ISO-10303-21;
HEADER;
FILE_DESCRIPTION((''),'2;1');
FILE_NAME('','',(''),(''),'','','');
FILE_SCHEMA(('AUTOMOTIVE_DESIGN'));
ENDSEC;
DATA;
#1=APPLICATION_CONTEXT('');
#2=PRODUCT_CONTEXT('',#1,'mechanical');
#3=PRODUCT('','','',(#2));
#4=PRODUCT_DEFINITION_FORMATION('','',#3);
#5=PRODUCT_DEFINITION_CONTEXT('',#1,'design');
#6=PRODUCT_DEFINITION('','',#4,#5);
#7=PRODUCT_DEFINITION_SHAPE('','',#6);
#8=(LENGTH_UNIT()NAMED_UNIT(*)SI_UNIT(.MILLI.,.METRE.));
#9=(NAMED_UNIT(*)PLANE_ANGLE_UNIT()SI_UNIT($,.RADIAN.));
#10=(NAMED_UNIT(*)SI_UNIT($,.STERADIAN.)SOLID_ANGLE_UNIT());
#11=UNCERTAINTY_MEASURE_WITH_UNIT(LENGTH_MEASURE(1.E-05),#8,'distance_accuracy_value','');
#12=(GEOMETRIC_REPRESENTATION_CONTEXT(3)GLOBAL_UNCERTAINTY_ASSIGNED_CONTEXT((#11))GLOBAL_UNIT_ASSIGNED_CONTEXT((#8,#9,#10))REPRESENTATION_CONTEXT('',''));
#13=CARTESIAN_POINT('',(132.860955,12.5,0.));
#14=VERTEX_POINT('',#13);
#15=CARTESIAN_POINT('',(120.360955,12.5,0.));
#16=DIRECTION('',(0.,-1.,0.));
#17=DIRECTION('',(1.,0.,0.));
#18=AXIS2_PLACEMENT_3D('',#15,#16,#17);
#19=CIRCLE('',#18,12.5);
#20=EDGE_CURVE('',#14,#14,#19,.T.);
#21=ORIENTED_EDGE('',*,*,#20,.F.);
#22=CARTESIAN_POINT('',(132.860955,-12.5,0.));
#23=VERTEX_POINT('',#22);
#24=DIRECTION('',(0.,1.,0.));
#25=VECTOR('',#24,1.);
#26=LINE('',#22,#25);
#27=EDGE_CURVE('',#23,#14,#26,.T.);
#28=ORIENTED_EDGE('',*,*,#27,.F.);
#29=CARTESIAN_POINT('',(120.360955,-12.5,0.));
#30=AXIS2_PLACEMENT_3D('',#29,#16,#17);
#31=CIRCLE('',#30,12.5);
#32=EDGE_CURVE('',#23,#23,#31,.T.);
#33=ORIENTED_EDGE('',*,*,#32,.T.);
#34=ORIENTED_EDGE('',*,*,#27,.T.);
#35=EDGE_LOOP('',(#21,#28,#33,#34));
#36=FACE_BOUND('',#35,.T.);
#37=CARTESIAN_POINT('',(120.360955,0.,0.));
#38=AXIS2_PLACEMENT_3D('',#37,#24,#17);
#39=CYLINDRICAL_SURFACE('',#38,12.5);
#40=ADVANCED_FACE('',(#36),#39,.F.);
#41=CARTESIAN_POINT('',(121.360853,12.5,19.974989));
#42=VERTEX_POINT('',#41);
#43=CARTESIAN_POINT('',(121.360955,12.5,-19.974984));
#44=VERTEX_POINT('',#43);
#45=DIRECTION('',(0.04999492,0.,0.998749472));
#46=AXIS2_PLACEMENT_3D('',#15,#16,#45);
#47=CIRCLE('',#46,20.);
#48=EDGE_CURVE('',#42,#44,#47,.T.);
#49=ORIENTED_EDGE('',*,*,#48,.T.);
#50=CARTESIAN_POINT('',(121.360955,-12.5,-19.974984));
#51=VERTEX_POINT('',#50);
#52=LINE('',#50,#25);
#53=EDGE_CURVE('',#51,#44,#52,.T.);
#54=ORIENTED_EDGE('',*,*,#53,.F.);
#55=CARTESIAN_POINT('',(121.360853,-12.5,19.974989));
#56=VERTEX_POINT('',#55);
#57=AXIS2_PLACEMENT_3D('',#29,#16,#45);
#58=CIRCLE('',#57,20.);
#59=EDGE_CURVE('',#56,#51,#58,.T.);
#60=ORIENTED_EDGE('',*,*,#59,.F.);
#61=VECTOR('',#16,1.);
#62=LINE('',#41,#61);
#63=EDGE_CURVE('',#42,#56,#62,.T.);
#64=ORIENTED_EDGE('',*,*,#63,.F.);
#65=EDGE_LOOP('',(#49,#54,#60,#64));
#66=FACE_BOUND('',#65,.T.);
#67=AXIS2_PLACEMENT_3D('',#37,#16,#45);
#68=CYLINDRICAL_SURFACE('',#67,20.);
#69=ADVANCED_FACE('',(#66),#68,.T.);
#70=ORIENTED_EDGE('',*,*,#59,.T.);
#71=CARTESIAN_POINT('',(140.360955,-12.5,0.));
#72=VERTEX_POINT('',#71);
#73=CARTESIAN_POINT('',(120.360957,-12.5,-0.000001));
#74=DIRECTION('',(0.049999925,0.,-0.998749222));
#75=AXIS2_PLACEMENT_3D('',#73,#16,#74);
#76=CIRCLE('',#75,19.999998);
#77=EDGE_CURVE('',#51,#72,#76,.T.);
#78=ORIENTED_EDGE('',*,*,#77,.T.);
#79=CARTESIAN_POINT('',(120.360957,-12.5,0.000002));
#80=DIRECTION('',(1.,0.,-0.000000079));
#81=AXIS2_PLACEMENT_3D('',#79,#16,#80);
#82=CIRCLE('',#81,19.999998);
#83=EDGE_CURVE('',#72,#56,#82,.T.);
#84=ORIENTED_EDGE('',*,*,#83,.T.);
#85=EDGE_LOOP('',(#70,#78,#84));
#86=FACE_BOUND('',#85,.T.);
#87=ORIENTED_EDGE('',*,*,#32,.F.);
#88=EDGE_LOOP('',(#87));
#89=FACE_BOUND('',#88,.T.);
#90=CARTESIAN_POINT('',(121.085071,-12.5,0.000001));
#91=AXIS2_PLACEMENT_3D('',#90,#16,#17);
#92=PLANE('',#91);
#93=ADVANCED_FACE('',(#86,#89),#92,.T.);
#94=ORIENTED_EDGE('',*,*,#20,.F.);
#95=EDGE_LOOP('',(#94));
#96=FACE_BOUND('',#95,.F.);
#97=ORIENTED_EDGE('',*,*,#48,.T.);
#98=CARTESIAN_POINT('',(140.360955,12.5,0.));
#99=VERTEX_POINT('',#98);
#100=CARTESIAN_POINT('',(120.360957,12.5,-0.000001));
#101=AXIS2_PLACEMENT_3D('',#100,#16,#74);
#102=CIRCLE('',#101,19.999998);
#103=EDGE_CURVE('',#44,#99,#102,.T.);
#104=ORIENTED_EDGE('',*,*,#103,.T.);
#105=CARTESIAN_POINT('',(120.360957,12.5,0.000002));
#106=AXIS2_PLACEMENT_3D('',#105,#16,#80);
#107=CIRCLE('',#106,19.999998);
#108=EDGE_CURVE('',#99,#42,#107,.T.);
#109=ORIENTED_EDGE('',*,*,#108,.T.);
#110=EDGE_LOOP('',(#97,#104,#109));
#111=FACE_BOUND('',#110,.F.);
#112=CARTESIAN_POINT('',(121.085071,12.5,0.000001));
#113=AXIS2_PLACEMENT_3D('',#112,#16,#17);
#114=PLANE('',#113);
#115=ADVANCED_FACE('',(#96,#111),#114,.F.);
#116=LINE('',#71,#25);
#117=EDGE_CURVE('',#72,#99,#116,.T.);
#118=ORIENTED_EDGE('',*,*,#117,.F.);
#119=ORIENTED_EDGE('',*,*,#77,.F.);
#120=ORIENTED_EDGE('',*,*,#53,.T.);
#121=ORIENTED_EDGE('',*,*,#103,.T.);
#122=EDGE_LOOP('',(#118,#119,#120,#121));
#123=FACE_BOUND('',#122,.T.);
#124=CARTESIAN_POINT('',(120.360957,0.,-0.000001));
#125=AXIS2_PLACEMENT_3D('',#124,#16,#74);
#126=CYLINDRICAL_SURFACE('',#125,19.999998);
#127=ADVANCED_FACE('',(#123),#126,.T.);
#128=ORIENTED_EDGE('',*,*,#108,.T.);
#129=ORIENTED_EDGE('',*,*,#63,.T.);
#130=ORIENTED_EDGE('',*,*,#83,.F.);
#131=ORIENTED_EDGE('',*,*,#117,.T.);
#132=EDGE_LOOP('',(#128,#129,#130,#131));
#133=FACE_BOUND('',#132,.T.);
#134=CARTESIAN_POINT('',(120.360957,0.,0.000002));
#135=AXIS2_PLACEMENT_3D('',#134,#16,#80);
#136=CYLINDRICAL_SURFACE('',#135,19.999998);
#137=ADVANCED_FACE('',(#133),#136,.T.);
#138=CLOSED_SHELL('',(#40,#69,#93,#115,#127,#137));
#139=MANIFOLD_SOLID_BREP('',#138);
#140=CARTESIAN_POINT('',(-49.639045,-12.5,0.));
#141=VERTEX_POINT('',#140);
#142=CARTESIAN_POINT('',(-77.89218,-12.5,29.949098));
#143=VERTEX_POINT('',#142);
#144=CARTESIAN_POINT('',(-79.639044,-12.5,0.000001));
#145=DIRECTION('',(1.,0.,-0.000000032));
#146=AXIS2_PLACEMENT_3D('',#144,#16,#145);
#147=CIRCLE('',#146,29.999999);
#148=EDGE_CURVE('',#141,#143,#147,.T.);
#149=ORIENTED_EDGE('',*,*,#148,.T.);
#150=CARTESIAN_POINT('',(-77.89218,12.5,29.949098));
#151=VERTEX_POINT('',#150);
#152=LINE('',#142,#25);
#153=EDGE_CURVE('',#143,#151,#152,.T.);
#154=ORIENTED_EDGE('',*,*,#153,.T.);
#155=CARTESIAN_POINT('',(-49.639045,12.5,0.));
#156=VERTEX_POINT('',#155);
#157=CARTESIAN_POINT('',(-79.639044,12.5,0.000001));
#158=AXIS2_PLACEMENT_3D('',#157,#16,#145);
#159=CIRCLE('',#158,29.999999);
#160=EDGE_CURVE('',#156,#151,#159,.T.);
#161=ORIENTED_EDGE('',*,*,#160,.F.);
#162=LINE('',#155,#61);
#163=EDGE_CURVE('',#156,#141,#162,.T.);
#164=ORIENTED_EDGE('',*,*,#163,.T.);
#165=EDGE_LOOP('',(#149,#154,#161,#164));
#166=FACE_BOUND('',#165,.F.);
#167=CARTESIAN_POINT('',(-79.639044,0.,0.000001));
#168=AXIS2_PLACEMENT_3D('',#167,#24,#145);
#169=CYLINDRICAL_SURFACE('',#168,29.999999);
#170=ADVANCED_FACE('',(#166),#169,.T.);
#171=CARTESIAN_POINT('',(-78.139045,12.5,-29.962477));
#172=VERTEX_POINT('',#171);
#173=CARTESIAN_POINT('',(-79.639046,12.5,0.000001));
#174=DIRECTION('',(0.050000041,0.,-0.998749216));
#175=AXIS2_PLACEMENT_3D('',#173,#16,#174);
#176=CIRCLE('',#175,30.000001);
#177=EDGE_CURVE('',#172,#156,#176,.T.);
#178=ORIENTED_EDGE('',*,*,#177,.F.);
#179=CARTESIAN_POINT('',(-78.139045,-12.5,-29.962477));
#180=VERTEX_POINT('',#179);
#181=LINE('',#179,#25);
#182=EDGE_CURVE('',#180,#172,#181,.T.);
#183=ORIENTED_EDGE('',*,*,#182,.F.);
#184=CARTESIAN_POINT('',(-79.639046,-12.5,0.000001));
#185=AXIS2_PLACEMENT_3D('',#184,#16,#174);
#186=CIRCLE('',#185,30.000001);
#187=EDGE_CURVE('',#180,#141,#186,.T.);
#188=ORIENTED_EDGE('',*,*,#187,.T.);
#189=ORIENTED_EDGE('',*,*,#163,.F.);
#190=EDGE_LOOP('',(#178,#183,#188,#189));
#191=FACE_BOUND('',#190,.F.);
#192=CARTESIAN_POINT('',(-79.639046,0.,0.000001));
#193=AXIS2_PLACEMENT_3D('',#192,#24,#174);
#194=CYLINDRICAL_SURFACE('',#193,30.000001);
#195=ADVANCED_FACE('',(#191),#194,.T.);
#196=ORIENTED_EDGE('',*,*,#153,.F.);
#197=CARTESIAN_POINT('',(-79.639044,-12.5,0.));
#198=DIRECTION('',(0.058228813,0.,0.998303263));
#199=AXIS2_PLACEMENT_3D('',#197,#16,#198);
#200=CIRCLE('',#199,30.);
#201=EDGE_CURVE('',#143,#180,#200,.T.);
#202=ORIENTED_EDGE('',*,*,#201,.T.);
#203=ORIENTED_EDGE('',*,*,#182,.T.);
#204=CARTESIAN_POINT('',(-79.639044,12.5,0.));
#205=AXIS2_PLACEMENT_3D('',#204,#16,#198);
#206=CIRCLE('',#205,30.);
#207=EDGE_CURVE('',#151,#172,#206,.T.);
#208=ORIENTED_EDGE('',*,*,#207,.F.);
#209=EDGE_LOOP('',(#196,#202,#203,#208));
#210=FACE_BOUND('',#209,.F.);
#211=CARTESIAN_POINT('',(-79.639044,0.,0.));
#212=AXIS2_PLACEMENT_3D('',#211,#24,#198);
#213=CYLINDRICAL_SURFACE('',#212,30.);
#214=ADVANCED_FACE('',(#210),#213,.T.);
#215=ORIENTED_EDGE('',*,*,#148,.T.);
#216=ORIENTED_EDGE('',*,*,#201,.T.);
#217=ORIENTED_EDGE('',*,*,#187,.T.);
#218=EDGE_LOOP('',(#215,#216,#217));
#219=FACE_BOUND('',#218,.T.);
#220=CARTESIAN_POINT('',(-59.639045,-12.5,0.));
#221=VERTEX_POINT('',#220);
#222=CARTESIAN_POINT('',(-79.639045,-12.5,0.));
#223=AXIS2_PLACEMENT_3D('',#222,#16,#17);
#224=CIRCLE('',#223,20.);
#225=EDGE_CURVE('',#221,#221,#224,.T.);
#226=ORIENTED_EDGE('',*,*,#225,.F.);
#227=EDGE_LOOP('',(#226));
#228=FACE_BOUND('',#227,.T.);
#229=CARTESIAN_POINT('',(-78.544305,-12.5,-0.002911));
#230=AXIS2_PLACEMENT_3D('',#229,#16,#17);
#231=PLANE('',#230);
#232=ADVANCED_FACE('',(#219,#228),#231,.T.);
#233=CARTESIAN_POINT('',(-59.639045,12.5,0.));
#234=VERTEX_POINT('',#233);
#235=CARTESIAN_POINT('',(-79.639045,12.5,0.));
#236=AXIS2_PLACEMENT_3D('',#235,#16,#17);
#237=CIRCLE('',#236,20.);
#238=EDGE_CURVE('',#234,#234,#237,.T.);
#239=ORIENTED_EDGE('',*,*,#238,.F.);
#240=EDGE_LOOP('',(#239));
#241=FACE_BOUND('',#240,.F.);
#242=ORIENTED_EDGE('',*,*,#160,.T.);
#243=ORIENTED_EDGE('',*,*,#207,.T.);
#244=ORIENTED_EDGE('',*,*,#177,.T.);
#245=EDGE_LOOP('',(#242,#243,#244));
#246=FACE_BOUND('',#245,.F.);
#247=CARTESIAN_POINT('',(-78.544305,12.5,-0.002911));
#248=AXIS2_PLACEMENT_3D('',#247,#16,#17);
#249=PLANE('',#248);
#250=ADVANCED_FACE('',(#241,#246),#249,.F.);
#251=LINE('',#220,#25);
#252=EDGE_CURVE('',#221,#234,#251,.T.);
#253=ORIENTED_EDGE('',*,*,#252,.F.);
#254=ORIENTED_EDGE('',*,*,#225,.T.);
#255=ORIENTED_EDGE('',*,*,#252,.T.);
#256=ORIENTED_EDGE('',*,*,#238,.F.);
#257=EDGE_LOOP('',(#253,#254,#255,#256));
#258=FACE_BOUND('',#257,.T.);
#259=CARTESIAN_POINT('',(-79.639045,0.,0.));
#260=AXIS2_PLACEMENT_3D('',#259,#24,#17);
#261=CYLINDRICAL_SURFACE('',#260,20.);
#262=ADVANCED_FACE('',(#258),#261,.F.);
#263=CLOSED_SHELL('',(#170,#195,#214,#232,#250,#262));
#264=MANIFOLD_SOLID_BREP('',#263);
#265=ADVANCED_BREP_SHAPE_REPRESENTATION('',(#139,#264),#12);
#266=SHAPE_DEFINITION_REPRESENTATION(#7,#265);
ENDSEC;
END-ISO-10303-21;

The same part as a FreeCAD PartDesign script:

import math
import FreeCAD as App
import Part
import Sketcher
from FreeCAD import Vector

doc = App.newDocument("Part")
params = doc.addObject("Spreadsheet::Sheet", "Params")
for row, (alias, value) in enumerate([
    ("sketch1_diameter", "40 mm"),
    ("sketch1_diameter2", "25 mm"),
    ("sketch1_radius", "30.000001 mm"),
    ("sketch1_radius2", "20 mm"),
    ("sketch1_width", "1.499999 mm"),
    ("pad1_length", "25 mm"),
], start=1):
    params.set(f"A{row}", alias)
    params.set(f"B{row}", "=" + value)
    params.setAlias(f"B{row}", alias)

body = doc.addObject("PartDesign::Body", "Body")
body.AllowCompound = True

# Sketch on XZ plane
sketch1 = doc.addObject("Sketcher::SketchObject", "Sketch")
body.addObject(sketch1)
sketch1.AttachmentSupport = (doc.XZ_Plane, [""])
sketch1.MapMode = "FlatFace"
sketch1.addGeometry([
    Part.ArcOfCircle(Part.Circle(Vector(-79.639046, 0.000001, 0), Vector(0, 0, 1), 30.000001), math.radians(-87.134014), math.radians(-0.000001)),  # 0
    Part.ArcOfCircle(Part.Circle(Vector(-79.639044, 0.000001, 0), Vector(0, 0, 1), 29.999999), math.radians(-0.000002), math.radians(86.661847)),  # 1
    Part.ArcOfCircle(Part.Circle(Vector(-79.639044, 0, 0), Vector(0, 0, 1), 30), math.radians(86.661847), math.radians(272.865983)),  # 2
    Part.Circle(Vector(-79.639045, 0, 0), Vector(0, 0, 1), 20),  # 3
    Part.ArcOfCircle(Part.Circle(Vector(120.360957, 0.000002, 0), Vector(0, 0, 1), 19.999998), math.radians(-0.000005), math.radians(87.134314)),  # 4
    Part.ArcOfCircle(Part.Circle(Vector(120.360955, 0, 0), Vector(0, 0, 1), 20), math.radians(87.134307), math.radians(272.865985)),  # 5
    Part.ArcOfCircle(Part.Circle(Vector(120.360957, -0.000001, 0), Vector(0, 0, 1), 19.999998), math.radians(-87.13402), math.radians(0.000003)),  # 6
    Part.Circle(Vector(120.360955, 0, 0), Vector(0, 0, 1), 12.5),  # 7
], False)
sketch1.addConstraint([
    Sketcher.Constraint("Tangent", 0, 2, 1, 1),
    Sketcher.Constraint("Tangent", 1, 2, 2, 1),
    Sketcher.Constraint("Tangent", 2, 2, 0, 1),
    Sketcher.Constraint("Tangent", 4, 2, 5, 1),
    Sketcher.Constraint("Tangent", 5, 2, 6, 1),
    Sketcher.Constraint("Tangent", 6, 2, 4, 1),
    Sketcher.Constraint("Coincident", 3, 3, 0, 3),
    Sketcher.Constraint("Coincident", 7, 3, 4, 3),
    Sketcher.Constraint("PointOnObject", 0, 3, -1),
    Sketcher.Constraint("PointOnObject", 4, 3, -1),
    Sketcher.Constraint("PointOnObject", 0, 2, -1),
    Sketcher.Constraint("PointOnObject", 6, 2, -1),
    Sketcher.Constraint("Diameter", 3, 40.0),
    Sketcher.Constraint("Diameter", 7, 25.0),
    Sketcher.Constraint("Radius", 0, 30.000001),
    Sketcher.Constraint("Radius", 5, 20.0),
    Sketcher.Constraint("DistanceX", 1, 3, 4, 3, 200.000001),
    Sketcher.Constraint("DistanceX", 6, 3, 5, 2, 0.999998),
    Sketcher.Constraint("DistanceX", 2, 3, 2, 2, 1.499999),
    Sketcher.Constraint("DistanceY", -1, 1, 1, 2, 29.949098),
    Sketcher.Constraint("DistanceX", 7, 3, 4, 2, 0.999898),
    Sketcher.Constraint("DistanceX", 1, 2, -1, 1, 77.89218),
])
sketch1.setExpression("Constraints[12]", "Params.sketch1_diameter")
sketch1.setExpression("Constraints[13]", "Params.sketch1_diameter2")
sketch1.setExpression("Constraints[14]", "Params.sketch1_radius")
sketch1.setExpression("Constraints[15]", "Params.sketch1_radius2")
sketch1.setExpression("Constraints[18]", "Params.sketch1_width")
pad1 = doc.addObject("PartDesign::Pad", "Pad")
body.addObject(pad1)
pad1.Profile = sketch1
pad1.setExpression("Length", "Params.pad1_length")
pad1.Midplane = True

doc.recompute()
